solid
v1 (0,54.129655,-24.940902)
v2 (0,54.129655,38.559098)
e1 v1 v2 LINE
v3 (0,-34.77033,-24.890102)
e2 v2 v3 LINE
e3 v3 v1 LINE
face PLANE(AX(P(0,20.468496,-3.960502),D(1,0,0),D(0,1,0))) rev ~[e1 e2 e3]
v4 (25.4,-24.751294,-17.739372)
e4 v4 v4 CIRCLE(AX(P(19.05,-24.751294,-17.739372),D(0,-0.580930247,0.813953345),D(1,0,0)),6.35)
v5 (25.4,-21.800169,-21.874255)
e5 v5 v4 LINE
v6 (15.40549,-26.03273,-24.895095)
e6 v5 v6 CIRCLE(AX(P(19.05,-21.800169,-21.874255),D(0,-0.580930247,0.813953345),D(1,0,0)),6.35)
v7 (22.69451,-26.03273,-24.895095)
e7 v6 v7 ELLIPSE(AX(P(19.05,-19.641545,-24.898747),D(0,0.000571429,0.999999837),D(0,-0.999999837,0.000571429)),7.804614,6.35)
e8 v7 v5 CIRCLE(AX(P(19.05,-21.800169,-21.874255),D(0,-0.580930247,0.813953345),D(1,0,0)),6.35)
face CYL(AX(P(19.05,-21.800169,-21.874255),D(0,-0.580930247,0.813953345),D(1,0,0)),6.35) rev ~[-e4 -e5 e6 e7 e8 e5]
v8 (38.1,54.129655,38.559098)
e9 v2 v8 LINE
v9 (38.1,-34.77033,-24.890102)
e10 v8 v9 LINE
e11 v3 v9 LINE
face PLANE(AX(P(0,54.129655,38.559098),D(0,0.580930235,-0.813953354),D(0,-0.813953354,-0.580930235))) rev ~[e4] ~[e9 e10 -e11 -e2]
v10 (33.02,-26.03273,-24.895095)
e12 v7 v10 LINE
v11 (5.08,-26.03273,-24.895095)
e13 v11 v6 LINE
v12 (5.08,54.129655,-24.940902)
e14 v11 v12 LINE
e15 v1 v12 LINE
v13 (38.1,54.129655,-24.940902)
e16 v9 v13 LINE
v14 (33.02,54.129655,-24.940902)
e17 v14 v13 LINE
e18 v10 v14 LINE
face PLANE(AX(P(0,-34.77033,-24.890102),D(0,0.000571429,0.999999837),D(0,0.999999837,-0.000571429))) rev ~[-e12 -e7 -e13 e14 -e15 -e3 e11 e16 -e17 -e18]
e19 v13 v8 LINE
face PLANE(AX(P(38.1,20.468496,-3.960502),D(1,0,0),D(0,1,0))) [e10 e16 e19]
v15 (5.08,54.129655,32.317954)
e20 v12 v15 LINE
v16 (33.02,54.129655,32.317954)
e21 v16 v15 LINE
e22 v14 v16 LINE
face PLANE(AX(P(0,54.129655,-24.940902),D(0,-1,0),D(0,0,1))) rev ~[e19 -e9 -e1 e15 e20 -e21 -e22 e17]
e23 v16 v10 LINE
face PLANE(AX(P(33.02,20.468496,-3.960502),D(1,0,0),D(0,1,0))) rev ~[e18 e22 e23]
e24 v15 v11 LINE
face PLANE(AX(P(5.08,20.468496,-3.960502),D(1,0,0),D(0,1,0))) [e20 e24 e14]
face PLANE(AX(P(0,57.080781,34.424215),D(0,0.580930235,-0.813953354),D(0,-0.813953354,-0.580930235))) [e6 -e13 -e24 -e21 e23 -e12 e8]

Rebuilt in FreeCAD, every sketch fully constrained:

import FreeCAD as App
import Part
import Sketcher
from FreeCAD import Vector
Q = App.Units.Quantity


def faces_at(feature, points):
    """Names of the faces that lie closest to the given points."""
    faces = feature.Shape.Faces
    near = lambda p: min(range(len(faces)), key=lambda i: faces[i].distToShape(Part.Vertex(*p))[0])
    return sorted({f"Face{near(p) + 1}" for p in points})


def add_polygon(sketch, points):
    """Adds a closed chain of lines whose ends are joined by coincident constraints."""
    first, n = sketch.GeometryCount, len(points)
    for a, b in zip(points, points[1:] + points[:1]):
        sketch.addGeometry(Part.LineSegment(App.Vector(*a, 0), App.Vector(*b, 0)), False)
    for i in range(n):
        sketch.addConstraint(Sketcher.Constraint("Coincident", first + i, 2, first + (i + 1) % n, 1))

doc = App.newDocument("Part")
params = doc.addObject("Spreadsheet::Sheet", "Params")
for row, (alias, value) in enumerate([
    ("sketch1_height", "2.5 in"),
    ("sketch1_length", "4.3 in"),
    ("sketch1_length2", "3.5 in"),
    ("pad1_length", "1.5 in"),
    ("thickness_wall", "0.2 in"),
    ("sketch2_diameter", "0.25 in"),
    ("hole_diameter", "0.25 in"),
    ("hole_cbore_diameter", "0.5 in"),
    ("hole_cbore_depth", "0.2 in"),
], start=1):
    params.set(f"A{row}", alias)
    params.set(f"B{row}", "=" + value)
    params.setAlias(f"B{row}", alias)

body = doc.addObject("PartDesign::Body", "Body")

sketch1 = doc.addObject("Sketcher::SketchObject", "Sketch")
body.addObject(sketch1)
sketch1.AttachmentSupport = (doc.YZ_Plane, [""])
sketch1.MapMode = "FlatFace"
add_polygon(sketch1, [(54.129655, 38.559098), (-34.77033, -24.890102), (54.129655, -24.940902)])
sketch1.addConstraint(Sketcher.Constraint("Vertical", 2))
sketch1.addConstraint(Sketcher.Constraint("DistanceY", 2, 1, 2, 2, Q("2.5 in")))
sketch1.addConstraint(Sketcher.Constraint("Distance", 0, Q("4.3 in")))
sketch1.addConstraint(Sketcher.Constraint("Distance", 1, Q("3.5 in")))
sketch1.addConstraint(Sketcher.Constraint("DistanceY", 0, 2, -1, 1, Q("24.890102 mm")))
sketch1.addConstraint(Sketcher.Constraint("DistanceX", 0, 2, -1, 1, Q("34.77033 mm")))
sketch1.setExpression("Constraints[4]", "Params.sketch1_height")
sketch1.setExpression("Constraints[5]", "Params.sketch1_length")
sketch1.setExpression("Constraints[6]", "Params.sketch1_length2")
pad1 = doc.addObject("PartDesign::Pad", "Pad")
body.addObject(pad1)
pad1.Profile = sketch1
pad1.setExpression("Length", "Params.pad1_length")
doc.recompute()

thickness = doc.addObject("PartDesign::Thickness", "Thickness")
body.addObject(thickness)
thickness.Base = (pad1, faces_at(pad1, [(19.05, 9.68, -24.916), (19.05, 54.13, 6.809)]))
thickness.setExpression("Value", "Params.thickness_wall")
thickness.Reversed = True
thickness.Join = "Arc"

sketch2 = doc.addObject("Sketcher::SketchObject", "Sketch001")
body.addObject(sketch2)
sketch2.Placement = App.Placement(Vector(0, 0.034999, -0.049037), App.Rotation(Vector(1, 0, 0), Vector(0, 0.813953345, 0.580930247), Vector(0, -0.580930247, 0.813953345), "ZXY"))
sketch2.addGeometry(Part.Circle(Vector(19.05, -30.451737, 0), Vector(0, 0, 1), 3.175), False)
sketch2.addConstraint(Sketcher.Constraint("Diameter", 0, Q("0.25 in")))
sketch2.addConstraint(Sketcher.Constraint("DistanceX", -1, 1, 0, 3, Q("0.75 in")))
sketch2.addConstraint(Sketcher.Constraint("DistanceY", 0, 3, -1, 1, Q("30.451737 mm")))
sketch2.setExpression("Constraints[0]", "Params.sketch2_diameter")
doc.recompute()
hole = doc.addObject("PartDesign::Hole", "Hole")
body.addObject(hole)
hole.Profile = sketch2
hole.ThreadType = "None"
hole.setExpression("Diameter", "Params.hole_diameter")
hole.DepthType = "ThroughAll"
hole.HoleCutType = "Counterbore"
hole.setExpression("HoleCutDiameter", "Params.hole_cbore_diameter")
hole.setExpression("HoleCutDepth", "Params.hole_cbore_depth")

doc.recompute()
